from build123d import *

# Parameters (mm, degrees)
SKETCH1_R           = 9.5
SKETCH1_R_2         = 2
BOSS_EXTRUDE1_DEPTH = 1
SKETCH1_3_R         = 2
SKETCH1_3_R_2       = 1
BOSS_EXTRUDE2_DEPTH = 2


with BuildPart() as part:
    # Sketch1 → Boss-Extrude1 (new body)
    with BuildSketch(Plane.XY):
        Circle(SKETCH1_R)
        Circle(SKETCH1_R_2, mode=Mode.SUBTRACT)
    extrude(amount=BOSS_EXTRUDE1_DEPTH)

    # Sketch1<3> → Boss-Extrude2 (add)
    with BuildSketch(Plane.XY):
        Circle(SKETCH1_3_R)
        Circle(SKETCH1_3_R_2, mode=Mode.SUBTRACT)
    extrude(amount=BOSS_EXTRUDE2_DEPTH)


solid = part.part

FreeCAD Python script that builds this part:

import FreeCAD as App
import Part
import Sketcher
Q = App.Units.Quantity

doc = App.newDocument("Part")
body = doc.addObject("PartDesign::Body", "Body")

sketch1 = body.newObject("Sketcher::SketchObject", "Sketch")
sketch1.AttachmentSupport = (doc.getObject("XY_Plane"), [""])
sketch1.MapMode = "FlatFace"
sketch1.addGeometry([
    Part.Circle(App.Vector(0, 0, 0), App.Vector(0, 0, 1), 9.5),
    Part.Circle(App.Vector(0, 0, 0), App.Vector(0, 0, 1), 2),
], False)
sketch1.addConstraint([
    Sketcher.Constraint("Coincident", 0, 3, -1, 1),
    Sketcher.Constraint("Coincident", 1, 3, -1, 1),
    Sketcher.Constraint("Diameter", 0, Q("19 mm")),
    Sketcher.Constraint("Diameter", 1, Q("4 mm")),
])
pad1 = body.newObject("PartDesign::Pad", "Pad")
pad1.Profile = sketch1
pad1.Length = 1

sketch2 = body.newObject("Sketcher::SketchObject", "Sketch001")
sketch2.AttachmentSupport = (doc.getObject("XY_Plane"), [""])
sketch2.MapMode = "FlatFace"
sketch2.addGeometry([
    Part.Circle(App.Vector(0, 0, 0), App.Vector(0, 0, 1), 2),
    Part.Circle(App.Vector(0, 0, 0), App.Vector(0, 0, 1), 1),
], False)
sketch2.addConstraint([
    Sketcher.Constraint("Coincident", 0, 3, -1, 1),
    Sketcher.Constraint("Coincident", 1, 3, -1, 1),
    Sketcher.Constraint("Diameter", 0, Q("4 mm")),
    Sketcher.Constraint("Diameter", 1, Q("2 mm")),
])
pad2 = body.newObject("PartDesign::Pad", "Pad001")
pad2.Profile = sketch2
pad2.Length = 2

doc.recompute()
